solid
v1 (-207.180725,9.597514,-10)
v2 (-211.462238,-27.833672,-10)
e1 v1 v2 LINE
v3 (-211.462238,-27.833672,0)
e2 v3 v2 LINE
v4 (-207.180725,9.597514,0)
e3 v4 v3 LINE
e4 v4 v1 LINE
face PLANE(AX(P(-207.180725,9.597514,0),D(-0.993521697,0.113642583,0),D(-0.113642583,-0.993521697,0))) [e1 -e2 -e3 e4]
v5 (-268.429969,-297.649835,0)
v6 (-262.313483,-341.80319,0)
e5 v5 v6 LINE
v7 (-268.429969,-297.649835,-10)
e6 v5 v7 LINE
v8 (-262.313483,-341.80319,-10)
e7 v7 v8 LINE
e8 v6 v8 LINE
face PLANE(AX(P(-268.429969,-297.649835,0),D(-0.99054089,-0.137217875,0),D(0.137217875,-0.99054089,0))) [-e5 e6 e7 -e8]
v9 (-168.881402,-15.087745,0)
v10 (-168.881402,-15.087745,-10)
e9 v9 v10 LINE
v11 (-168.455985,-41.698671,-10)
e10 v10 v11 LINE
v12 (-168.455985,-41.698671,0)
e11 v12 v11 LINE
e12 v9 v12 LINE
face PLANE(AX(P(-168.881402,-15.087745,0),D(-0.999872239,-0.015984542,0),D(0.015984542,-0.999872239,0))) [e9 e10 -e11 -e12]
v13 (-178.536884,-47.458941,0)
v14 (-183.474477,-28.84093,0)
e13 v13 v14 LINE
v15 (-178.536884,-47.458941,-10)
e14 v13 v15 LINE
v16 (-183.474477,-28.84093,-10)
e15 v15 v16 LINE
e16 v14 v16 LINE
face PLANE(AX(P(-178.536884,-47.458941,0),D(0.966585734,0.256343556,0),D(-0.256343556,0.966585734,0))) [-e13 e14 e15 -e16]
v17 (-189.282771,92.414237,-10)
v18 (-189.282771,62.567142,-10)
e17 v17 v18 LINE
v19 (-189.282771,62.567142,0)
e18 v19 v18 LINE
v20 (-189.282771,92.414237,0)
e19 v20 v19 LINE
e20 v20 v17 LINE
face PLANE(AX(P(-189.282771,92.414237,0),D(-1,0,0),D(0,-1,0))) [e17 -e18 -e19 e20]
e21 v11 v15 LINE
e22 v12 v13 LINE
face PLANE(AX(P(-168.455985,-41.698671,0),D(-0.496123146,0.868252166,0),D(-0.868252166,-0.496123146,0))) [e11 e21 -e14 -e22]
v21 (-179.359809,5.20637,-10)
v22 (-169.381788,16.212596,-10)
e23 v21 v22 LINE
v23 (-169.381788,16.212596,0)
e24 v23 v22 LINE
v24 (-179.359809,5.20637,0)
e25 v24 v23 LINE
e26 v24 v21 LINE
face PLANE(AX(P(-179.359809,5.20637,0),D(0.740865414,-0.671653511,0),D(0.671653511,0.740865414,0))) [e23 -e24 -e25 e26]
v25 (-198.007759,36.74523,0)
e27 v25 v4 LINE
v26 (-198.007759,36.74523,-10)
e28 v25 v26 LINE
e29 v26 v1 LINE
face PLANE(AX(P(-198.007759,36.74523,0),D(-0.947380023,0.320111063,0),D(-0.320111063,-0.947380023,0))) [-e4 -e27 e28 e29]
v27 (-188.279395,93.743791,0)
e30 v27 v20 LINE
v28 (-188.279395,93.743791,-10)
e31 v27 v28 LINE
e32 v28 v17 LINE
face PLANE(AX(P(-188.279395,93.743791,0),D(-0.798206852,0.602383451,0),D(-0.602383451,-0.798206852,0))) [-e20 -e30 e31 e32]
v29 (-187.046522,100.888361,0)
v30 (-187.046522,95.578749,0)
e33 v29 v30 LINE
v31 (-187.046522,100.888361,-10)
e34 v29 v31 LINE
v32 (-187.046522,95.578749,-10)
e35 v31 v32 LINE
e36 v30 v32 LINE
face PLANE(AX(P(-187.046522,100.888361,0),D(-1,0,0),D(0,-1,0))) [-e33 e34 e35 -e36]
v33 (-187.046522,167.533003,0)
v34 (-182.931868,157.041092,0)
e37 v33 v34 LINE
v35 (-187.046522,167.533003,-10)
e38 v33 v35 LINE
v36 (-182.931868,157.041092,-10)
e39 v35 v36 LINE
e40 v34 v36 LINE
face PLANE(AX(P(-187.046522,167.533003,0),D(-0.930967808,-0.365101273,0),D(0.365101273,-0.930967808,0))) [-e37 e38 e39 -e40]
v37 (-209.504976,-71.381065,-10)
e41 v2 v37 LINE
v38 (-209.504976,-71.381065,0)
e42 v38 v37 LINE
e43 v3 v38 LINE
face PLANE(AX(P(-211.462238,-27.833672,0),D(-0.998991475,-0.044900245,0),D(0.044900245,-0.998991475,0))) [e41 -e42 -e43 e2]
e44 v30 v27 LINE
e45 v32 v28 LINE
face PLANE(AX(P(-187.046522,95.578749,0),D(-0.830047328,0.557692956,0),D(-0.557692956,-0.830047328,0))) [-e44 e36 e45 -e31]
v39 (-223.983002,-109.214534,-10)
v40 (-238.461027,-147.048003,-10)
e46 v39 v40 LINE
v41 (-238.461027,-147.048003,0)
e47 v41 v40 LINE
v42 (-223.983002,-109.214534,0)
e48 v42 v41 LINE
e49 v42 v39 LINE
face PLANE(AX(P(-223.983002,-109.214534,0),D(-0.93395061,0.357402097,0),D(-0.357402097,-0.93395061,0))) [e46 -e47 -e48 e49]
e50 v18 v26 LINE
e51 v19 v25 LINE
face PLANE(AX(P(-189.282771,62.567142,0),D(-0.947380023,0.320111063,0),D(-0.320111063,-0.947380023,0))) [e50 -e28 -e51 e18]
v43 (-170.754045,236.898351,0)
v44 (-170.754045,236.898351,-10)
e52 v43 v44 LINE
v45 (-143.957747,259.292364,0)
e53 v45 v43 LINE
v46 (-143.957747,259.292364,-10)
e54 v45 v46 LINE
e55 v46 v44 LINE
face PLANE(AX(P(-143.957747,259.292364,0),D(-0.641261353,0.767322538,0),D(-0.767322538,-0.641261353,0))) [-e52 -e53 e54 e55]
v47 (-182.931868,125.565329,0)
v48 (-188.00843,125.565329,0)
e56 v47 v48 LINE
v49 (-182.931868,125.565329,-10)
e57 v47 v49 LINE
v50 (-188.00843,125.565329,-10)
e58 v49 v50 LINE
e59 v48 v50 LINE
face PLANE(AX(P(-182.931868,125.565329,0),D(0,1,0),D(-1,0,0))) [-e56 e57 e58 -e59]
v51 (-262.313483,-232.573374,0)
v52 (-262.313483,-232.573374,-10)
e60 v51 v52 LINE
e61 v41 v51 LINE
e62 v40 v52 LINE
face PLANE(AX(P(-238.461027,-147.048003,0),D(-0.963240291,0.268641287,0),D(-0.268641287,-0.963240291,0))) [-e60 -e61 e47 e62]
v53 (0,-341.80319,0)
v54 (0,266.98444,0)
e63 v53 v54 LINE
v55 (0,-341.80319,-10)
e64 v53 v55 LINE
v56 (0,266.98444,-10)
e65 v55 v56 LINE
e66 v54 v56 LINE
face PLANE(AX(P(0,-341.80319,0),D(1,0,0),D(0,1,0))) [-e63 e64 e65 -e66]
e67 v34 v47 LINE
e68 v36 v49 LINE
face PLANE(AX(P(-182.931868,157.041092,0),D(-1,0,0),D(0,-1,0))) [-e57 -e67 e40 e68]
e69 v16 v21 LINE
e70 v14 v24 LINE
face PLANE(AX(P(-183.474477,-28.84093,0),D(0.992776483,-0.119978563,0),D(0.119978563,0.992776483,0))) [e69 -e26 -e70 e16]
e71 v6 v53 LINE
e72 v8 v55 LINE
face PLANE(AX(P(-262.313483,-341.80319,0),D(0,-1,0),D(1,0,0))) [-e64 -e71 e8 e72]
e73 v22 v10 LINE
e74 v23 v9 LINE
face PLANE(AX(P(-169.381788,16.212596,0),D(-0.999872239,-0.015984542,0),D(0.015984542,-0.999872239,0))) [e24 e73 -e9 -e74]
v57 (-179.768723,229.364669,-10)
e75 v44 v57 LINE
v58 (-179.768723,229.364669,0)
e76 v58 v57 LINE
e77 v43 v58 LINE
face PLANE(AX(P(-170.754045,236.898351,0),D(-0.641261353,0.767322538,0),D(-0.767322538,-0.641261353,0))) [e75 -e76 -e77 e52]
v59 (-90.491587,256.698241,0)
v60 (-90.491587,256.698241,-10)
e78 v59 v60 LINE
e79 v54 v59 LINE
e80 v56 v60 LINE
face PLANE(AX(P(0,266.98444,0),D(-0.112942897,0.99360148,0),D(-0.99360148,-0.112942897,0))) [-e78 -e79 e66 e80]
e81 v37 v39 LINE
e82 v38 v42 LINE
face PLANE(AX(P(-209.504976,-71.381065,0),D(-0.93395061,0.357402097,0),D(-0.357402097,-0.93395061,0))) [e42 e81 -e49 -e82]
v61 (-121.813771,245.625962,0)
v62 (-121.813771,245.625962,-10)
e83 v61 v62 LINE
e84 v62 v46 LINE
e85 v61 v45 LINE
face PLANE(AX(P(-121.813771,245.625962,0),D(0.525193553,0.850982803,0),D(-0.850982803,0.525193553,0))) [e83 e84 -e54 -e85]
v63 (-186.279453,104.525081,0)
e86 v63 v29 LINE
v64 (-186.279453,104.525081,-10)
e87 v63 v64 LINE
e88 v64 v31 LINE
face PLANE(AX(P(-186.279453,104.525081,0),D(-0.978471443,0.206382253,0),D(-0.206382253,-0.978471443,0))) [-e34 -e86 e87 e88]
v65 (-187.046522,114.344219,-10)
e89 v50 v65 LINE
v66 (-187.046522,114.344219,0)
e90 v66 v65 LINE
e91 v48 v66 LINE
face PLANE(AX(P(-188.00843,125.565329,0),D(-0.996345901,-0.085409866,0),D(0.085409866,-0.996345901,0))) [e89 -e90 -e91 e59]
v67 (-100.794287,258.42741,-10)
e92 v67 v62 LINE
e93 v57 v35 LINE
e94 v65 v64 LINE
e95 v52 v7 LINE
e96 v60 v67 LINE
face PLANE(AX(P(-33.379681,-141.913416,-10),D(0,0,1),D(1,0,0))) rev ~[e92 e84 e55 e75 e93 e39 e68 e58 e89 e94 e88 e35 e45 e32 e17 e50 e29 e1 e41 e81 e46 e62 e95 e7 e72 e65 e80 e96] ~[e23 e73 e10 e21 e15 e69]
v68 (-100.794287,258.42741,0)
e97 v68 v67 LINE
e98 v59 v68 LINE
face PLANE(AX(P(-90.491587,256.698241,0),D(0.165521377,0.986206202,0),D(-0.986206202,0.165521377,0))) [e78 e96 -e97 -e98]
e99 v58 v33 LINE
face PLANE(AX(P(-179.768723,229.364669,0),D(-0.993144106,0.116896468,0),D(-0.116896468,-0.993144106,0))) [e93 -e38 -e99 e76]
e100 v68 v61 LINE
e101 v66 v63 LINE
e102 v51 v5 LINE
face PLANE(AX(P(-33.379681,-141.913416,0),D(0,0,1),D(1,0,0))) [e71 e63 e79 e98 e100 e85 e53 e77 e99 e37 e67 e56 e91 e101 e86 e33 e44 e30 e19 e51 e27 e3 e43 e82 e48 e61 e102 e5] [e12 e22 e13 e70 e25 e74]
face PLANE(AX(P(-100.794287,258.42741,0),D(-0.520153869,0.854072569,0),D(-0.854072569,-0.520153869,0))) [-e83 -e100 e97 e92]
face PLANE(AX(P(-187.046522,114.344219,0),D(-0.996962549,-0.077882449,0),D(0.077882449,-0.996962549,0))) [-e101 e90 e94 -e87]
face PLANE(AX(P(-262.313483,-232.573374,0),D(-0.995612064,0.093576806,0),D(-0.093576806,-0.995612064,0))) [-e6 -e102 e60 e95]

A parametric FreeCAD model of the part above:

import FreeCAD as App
import Part
import Sketcher
from FreeCAD import Vector
Q = App.Units.Quantity

doc = App.newDocument("Part")
body = doc.addObject("PartDesign::Body", "Body")

# Sketch on XY plane
sketch1 = body.newObject("Sketcher::SketchObject", "Sketch")
sketch1.AttachmentSupport = (doc.getObject("XY_Plane"), [""])
sketch1.MapMode = "FlatFace"
sketch1.addGeometry([
    Part.LineSegment(Vector(0, 267, 0), Vector(-90.5, 256.7, 0)),  # 0
    Part.LineSegment(Vector(-90.5, 256.7, 0), Vector(-100.8, 258.4, 0)),  # 1
    Part.LineSegment(Vector(-100.8, 258.4, 0), Vector(-121.8, 245.6, 0)),  # 2
    Part.LineSegment(Vector(-121.8, 245.6, 0), Vector(-144, 259.3, 0)),  # 3
    Part.LineSegment(Vector(-144, 259.3, 0), Vector(-170.8, 236.9, 0)),  # 4
    Part.LineSegment(Vector(-170.8, 236.9, 0), Vector(-179.8, 229.4, 0)),  # 5
    Part.LineSegment(Vector(-179.8, 229.4, 0), Vector(-187, 167.5, 0)),  # 6
    Part.LineSegment(Vector(-187, 167.5, 0), Vector(-182.9, 157, 0)),  # 7
    Part.LineSegment(Vector(-182.9, 157, 0), Vector(-182.9, 125.6, 0)),  # 8
    Part.LineSegment(Vector(-182.9, 125.6, 0), Vector(-188, 125.6, 0)),  # 9
    Part.LineSegment(Vector(-188, 125.6, 0), Vector(-187, 114.3, 0)),  # 10
    Part.LineSegment(Vector(-187, 114.3, 0), Vector(-186.3, 104.5, 0)),  # 11
    Part.LineSegment(Vector(-186.3, 104.5, 0), Vector(-187, 100.9, 0)),  # 12
    Part.LineSegment(Vector(-187, 100.9, 0), Vector(-187, 95.6, 0)),  # 13
    Part.LineSegment(Vector(-187, 95.6, 0), Vector(-188.3, 93.7, 0)),  # 14
    Part.LineSegment(Vector(-188.3, 93.7, 0), Vector(-189.3, 92.4, 0)),  # 15
    Part.LineSegment(Vector(-189.3, 92.4, 0), Vector(-189.3, 62.6, 0)),  # 16
    Part.LineSegment(Vector(-189.3, 62.6, 0), Vector(-198, 36.7, 0)),  # 17
    Part.LineSegment(Vector(-198, 36.7, 0), Vector(-207.2, 9.6, 0)),  # 18
    Part.LineSegment(Vector(-207.2, 9.6, 0), Vector(-211.5, -27.8, 0)),  # 19
    Part.LineSegment(Vector(-211.5, -27.8, 0), Vector(-209.5, -71.4, 0)),  # 20
    Part.LineSegment(Vector(-209.5, -71.4, 0), Vector(-224, -109.2, 0)),  # 21
    Part.LineSegment(Vector(-224, -109.2, 0), Vector(-238.5, -147, 0)),  # 22
    Part.LineSegment(Vector(-238.5, -147, 0), Vector(-262.3, -232.6, 0)),  # 23
    Part.LineSegment(Vector(-262.3, -232.6, 0), Vector(-268.4, -297.6, 0)),  # 24
    Part.LineSegment(Vector(-268.4, -297.6, 0), Vector(-262.3, -341.8, 0)),  # 25
    Part.LineSegment(Vector(-262.3, -341.8, 0), Vector(0, -341.8, 0)),  # 26
    Part.LineSegment(Vector(0, -341.8, 0), Vector(0, 267, 0)),  # 27
    Part.LineSegment(Vector(-168.9, -15.1, 0), Vector(-168.5, -41.7, 0)),  # 28
    Part.LineSegment(Vector(-168.5, -41.7, 0), Vector(-178.5, -47.5, 0)),  # 29
    Part.LineSegment(Vector(-178.5, -47.5, 0), Vector(-183.5, -28.8, 0)),  # 30
    Part.LineSegment(Vector(-183.5, -28.8, 0), Vector(-179.4, 5.2, 0)),  # 31
    Part.LineSegment(Vector(-179.4, 5.2, 0), Vector(-169.4, 16.2, 0)),  # 32
    Part.LineSegment(Vector(-169.4, 16.2, 0), Vector(-168.9, -15.1, 0)),  # 33
], False)
sketch1.addConstraint([
    Sketcher.Constraint("Coincident", 0, 2, 1, 1),
    Sketcher.Constraint("Coincident", 1, 2, 2, 1),
    Sketcher.Constraint("Coincident", 2, 2, 3, 1),
    Sketcher.Constraint("Coincident", 3, 2, 4, 1),
    Sketcher.Constraint("Coincident", 4, 2, 5, 1),
    Sketcher.Constraint("Coincident", 5, 2, 6, 1),
    Sketcher.Constraint("Coincident", 6, 2, 7, 1),
    Sketcher.Constraint("Coincident", 7, 2, 8, 1),
    Sketcher.Constraint("Coincident", 8, 2, 9, 1),
    Sketcher.Constraint("Coincident", 9, 2, 10, 1),
    Sketcher.Constraint("Coincident", 10, 2, 11, 1),
    Sketcher.Constraint("Coincident", 11, 2, 12, 1),
    Sketcher.Constraint("Coincident", 12, 2, 13, 1),
    Sketcher.Constraint("Coincident", 13, 2, 14, 1),
    Sketcher.Constraint("Coincident", 14, 2, 15, 1),
    Sketcher.Constraint("Coincident", 15, 2, 16, 1),
    Sketcher.Constraint("Coincident", 16, 2, 17, 1),
    Sketcher.Constraint("Coincident", 17, 2, 18, 1),
    Sketcher.Constraint("Coincident", 18, 2, 19, 1),
    Sketcher.Constraint("Coincident", 19, 2, 20, 1),
    Sketcher.Constraint("Coincident", 20, 2, 21, 1),
    Sketcher.Constraint("Coincident", 21, 2, 22, 1),
    Sketcher.Constraint("Coincident", 22, 2, 23, 1),
    Sketcher.Constraint("Coincident", 23, 2, 24, 1),
    Sketcher.Constraint("Coincident", 24, 2, 25, 1),
    Sketcher.Constraint("Coincident", 25, 2, 26, 1),
    Sketcher.Constraint("Coincident", 26, 2, 27, 1),
    Sketcher.Constraint("Coincident", 27, 2, 0, 1),
    Sketcher.Constraint("Coincident", 28, 2, 29, 1),
    Sketcher.Constraint("Coincident", 29, 2, 30, 1),
    Sketcher.Constraint("Coincident", 30, 2, 31, 1),
    Sketcher.Constraint("Coincident", 31, 2, 32, 1),
    Sketcher.Constraint("Coincident", 32, 2, 33, 1),
    Sketcher.Constraint("Coincident", 33, 2, 28, 1),
    Sketcher.Constraint("Vertical", 8),
    Sketcher.Constraint("Horizontal", 9),
    Sketcher.Constraint("Vertical", 13),
    Sketcher.Constraint("Vertical", 16),
    Sketcher.Constraint("Horizontal", 26),
    Sketcher.Constraint("Vertical", 27),
    Sketcher.Constraint("PointOnObject", 26, 2, -2),
    Sketcher.Constraint("Parallel", 4, 5),
    Sketcher.Constraint("Parallel", 17, 18),
    Sketcher.Constraint("Parallel", 21, 22),
    Sketcher.Constraint("Parallel", 28, 33),
    Sketcher.Constraint("Vertical", 6, 2, 10, 2),
    Sketcher.Constraint("Vertical", 10, 2, 12, 2),
    Sketcher.Constraint("Vertical", 23, 2, 25, 2),
    Sketcher.Constraint("Equal", 21, 22),
    Sketcher.Constraint("DistanceX", 21, 2, -1, 1, Q("223.983002 mm")),
    Sketcher.Constraint("DistanceY", 28, 2, 19, 2, Q("13.864998 mm")),
    Sketcher.Constraint("Distance", 1, Q("10.446801 mm")),
    Sketcher.Constraint("DistanceY", 27, 1, 27, 2, Q("608.78763 mm")),
    Sketcher.Constraint("DistanceX", 1, 2, 0, 2, Q("10.3027 mm")),
    Sketcher.Constraint("DistanceX", 4, 2, 3, 2, Q("26.796299 mm")),
    Sketcher.Constraint("DistanceX", 6, 2, 5, 2, Q("7.277799 mm")),
    Sketcher.Constraint("DistanceY", 23, 2, 19, 2, Q("204.739701 mm")),
    Sketcher.Constraint("DistanceY", 24, 2, 21, 2, Q("188.435301 mm")),
    Sketcher.Constraint("DistanceY", 0, 2, 27, 2, Q("10.286198 mm")),
    Sketcher.Constraint("DistanceY", 28, 2, 17, 2, Q("78.443901 mm")),
    Sketcher.Constraint("DistanceX", 29, 2, 28, 2, Q("10.080899 mm")),
    Sketcher.Constraint("DistanceX", 20, 2, 30, 2, Q("26.030499 mm")),
    Sketcher.Constraint("DistanceY", 30, 2, 31, 2, Q("34.0473 mm")),
    Sketcher.Constraint("Distance", 3, Q("26.021649 mm")),
    Sketcher.Constraint("Distance", 4, Q("34.921819 mm")),
    Sketcher.Constraint("Distance", 17, Q("27.256129 mm")),
    Sketcher.Constraint("Distance", 18, Q("28.655572 mm")),
    Sketcher.Constraint("Distance", 19, Q("37.675258 mm")),
    Sketcher.Constraint("Distance", 24, Q("65.363271 mm")),
    Sketcher.Constraint("Distance", 31, Q("34.29503 mm")),
    Sketcher.Constraint("Distance", 33, Q("31.30434 mm")),
    Sketcher.Constraint("DistanceX", 9, 2, 9, 1, Q("5.076562 mm")),
    Sketcher.Constraint("DistanceX", 26, 1, 26, 2, Q("262.313483 mm")),
    Sketcher.Constraint("DistanceY", 8, 2, 8, 1, Q("31.475763 mm")),
    Sketcher.Constraint("DistanceY", 13, 2, 13, 1, Q("5.309612 mm")),
    Sketcher.Constraint("DistanceY", 16, 2, 16, 1, Q("29.847094 mm")),
    Sketcher.Constraint("DistanceY", -1, 1, 0, 2, Q("256.698241 mm")),
    Sketcher.Constraint("DistanceX", 2, 2, -1, 1, Q("121.813771 mm")),
    Sketcher.Constraint("DistanceY", -1, 1, 2, 2, Q("245.625962 mm")),
    Sketcher.Constraint("DistanceY", -1, 1, 4, 2, Q("236.898351 mm")),
    Sketcher.Constraint("DistanceY", -1, 1, 5, 2, Q("229.364669 mm")),
    Sketcher.Constraint("DistanceX", 7, 2, -1, 1, Q("182.931868 mm")),
    Sketcher.Constraint("DistanceY", -1, 1, 7, 2, Q("157.041092 mm")),
    Sketcher.Constraint("DistanceY", -1, 1, 10, 2, Q("114.344219 mm")),
    Sketcher.Constraint("DistanceY", -1, 1, 11, 2, Q("104.525081 mm")),
    Sketcher.Constraint("DistanceY", -1, 1, 12, 2, Q("100.888361 mm")),
    Sketcher.Constraint("DistanceY", -1, 1, 14, 2, Q("93.743791 mm")),
    Sketcher.Constraint("DistanceX", 15, 2, -1, 1, Q("189.282771 mm")),
    Sketcher.Constraint("DistanceX", 17, 2, -1, 1, Q("198.007759 mm")),
    Sketcher.Constraint("DistanceY", -1, 1, 17, 2, Q("36.74523 mm")),
    Sketcher.Constraint("DistanceX", 24, 2, -1, 1, Q("268.429969 mm")),
    Sketcher.Constraint("DistanceY", 29, 2, -1, 1, Q("47.458941 mm")),
    Sketcher.Constraint("DistanceY", 30, 2, -1, 1, Q("28.84093 mm")),
    Sketcher.Constraint("DistanceX", 31, 2, -1, 1, Q("179.359809 mm")),
    Sketcher.Constraint("DistanceX", 3, 2, 1, 2, Q("43.16346 mm")),
    Sketcher.Constraint("DistanceY", 6, 2, 4, 2, Q("69.365348 mm")),
    Sketcher.Constraint("DistanceX", 10, 2, 11, 2, Q("0.767068 mm")),
    Sketcher.Constraint("DistanceX", 14, 2, 11, 2, Q("1.999941 mm")),
    Sketcher.Constraint("DistanceY", 20, 2, 18, 2, Q("80.978579 mm")),
    Sketcher.Constraint("DistanceX", 20, 2, 28, 2, Q("41.048991 mm")),
    Sketcher.Constraint("DistanceX", 31, 2, 32, 2, Q("9.978021 mm")),
    Sketcher.Constraint("DistanceY", 18, 2, 32, 2, Q("6.615082 mm")),
])
pad1 = body.newObject("PartDesign::Pad", "Pad")
pad1.Profile = sketch1
pad1.Length = 10
pad1.Reversed = True

doc.recompute()
